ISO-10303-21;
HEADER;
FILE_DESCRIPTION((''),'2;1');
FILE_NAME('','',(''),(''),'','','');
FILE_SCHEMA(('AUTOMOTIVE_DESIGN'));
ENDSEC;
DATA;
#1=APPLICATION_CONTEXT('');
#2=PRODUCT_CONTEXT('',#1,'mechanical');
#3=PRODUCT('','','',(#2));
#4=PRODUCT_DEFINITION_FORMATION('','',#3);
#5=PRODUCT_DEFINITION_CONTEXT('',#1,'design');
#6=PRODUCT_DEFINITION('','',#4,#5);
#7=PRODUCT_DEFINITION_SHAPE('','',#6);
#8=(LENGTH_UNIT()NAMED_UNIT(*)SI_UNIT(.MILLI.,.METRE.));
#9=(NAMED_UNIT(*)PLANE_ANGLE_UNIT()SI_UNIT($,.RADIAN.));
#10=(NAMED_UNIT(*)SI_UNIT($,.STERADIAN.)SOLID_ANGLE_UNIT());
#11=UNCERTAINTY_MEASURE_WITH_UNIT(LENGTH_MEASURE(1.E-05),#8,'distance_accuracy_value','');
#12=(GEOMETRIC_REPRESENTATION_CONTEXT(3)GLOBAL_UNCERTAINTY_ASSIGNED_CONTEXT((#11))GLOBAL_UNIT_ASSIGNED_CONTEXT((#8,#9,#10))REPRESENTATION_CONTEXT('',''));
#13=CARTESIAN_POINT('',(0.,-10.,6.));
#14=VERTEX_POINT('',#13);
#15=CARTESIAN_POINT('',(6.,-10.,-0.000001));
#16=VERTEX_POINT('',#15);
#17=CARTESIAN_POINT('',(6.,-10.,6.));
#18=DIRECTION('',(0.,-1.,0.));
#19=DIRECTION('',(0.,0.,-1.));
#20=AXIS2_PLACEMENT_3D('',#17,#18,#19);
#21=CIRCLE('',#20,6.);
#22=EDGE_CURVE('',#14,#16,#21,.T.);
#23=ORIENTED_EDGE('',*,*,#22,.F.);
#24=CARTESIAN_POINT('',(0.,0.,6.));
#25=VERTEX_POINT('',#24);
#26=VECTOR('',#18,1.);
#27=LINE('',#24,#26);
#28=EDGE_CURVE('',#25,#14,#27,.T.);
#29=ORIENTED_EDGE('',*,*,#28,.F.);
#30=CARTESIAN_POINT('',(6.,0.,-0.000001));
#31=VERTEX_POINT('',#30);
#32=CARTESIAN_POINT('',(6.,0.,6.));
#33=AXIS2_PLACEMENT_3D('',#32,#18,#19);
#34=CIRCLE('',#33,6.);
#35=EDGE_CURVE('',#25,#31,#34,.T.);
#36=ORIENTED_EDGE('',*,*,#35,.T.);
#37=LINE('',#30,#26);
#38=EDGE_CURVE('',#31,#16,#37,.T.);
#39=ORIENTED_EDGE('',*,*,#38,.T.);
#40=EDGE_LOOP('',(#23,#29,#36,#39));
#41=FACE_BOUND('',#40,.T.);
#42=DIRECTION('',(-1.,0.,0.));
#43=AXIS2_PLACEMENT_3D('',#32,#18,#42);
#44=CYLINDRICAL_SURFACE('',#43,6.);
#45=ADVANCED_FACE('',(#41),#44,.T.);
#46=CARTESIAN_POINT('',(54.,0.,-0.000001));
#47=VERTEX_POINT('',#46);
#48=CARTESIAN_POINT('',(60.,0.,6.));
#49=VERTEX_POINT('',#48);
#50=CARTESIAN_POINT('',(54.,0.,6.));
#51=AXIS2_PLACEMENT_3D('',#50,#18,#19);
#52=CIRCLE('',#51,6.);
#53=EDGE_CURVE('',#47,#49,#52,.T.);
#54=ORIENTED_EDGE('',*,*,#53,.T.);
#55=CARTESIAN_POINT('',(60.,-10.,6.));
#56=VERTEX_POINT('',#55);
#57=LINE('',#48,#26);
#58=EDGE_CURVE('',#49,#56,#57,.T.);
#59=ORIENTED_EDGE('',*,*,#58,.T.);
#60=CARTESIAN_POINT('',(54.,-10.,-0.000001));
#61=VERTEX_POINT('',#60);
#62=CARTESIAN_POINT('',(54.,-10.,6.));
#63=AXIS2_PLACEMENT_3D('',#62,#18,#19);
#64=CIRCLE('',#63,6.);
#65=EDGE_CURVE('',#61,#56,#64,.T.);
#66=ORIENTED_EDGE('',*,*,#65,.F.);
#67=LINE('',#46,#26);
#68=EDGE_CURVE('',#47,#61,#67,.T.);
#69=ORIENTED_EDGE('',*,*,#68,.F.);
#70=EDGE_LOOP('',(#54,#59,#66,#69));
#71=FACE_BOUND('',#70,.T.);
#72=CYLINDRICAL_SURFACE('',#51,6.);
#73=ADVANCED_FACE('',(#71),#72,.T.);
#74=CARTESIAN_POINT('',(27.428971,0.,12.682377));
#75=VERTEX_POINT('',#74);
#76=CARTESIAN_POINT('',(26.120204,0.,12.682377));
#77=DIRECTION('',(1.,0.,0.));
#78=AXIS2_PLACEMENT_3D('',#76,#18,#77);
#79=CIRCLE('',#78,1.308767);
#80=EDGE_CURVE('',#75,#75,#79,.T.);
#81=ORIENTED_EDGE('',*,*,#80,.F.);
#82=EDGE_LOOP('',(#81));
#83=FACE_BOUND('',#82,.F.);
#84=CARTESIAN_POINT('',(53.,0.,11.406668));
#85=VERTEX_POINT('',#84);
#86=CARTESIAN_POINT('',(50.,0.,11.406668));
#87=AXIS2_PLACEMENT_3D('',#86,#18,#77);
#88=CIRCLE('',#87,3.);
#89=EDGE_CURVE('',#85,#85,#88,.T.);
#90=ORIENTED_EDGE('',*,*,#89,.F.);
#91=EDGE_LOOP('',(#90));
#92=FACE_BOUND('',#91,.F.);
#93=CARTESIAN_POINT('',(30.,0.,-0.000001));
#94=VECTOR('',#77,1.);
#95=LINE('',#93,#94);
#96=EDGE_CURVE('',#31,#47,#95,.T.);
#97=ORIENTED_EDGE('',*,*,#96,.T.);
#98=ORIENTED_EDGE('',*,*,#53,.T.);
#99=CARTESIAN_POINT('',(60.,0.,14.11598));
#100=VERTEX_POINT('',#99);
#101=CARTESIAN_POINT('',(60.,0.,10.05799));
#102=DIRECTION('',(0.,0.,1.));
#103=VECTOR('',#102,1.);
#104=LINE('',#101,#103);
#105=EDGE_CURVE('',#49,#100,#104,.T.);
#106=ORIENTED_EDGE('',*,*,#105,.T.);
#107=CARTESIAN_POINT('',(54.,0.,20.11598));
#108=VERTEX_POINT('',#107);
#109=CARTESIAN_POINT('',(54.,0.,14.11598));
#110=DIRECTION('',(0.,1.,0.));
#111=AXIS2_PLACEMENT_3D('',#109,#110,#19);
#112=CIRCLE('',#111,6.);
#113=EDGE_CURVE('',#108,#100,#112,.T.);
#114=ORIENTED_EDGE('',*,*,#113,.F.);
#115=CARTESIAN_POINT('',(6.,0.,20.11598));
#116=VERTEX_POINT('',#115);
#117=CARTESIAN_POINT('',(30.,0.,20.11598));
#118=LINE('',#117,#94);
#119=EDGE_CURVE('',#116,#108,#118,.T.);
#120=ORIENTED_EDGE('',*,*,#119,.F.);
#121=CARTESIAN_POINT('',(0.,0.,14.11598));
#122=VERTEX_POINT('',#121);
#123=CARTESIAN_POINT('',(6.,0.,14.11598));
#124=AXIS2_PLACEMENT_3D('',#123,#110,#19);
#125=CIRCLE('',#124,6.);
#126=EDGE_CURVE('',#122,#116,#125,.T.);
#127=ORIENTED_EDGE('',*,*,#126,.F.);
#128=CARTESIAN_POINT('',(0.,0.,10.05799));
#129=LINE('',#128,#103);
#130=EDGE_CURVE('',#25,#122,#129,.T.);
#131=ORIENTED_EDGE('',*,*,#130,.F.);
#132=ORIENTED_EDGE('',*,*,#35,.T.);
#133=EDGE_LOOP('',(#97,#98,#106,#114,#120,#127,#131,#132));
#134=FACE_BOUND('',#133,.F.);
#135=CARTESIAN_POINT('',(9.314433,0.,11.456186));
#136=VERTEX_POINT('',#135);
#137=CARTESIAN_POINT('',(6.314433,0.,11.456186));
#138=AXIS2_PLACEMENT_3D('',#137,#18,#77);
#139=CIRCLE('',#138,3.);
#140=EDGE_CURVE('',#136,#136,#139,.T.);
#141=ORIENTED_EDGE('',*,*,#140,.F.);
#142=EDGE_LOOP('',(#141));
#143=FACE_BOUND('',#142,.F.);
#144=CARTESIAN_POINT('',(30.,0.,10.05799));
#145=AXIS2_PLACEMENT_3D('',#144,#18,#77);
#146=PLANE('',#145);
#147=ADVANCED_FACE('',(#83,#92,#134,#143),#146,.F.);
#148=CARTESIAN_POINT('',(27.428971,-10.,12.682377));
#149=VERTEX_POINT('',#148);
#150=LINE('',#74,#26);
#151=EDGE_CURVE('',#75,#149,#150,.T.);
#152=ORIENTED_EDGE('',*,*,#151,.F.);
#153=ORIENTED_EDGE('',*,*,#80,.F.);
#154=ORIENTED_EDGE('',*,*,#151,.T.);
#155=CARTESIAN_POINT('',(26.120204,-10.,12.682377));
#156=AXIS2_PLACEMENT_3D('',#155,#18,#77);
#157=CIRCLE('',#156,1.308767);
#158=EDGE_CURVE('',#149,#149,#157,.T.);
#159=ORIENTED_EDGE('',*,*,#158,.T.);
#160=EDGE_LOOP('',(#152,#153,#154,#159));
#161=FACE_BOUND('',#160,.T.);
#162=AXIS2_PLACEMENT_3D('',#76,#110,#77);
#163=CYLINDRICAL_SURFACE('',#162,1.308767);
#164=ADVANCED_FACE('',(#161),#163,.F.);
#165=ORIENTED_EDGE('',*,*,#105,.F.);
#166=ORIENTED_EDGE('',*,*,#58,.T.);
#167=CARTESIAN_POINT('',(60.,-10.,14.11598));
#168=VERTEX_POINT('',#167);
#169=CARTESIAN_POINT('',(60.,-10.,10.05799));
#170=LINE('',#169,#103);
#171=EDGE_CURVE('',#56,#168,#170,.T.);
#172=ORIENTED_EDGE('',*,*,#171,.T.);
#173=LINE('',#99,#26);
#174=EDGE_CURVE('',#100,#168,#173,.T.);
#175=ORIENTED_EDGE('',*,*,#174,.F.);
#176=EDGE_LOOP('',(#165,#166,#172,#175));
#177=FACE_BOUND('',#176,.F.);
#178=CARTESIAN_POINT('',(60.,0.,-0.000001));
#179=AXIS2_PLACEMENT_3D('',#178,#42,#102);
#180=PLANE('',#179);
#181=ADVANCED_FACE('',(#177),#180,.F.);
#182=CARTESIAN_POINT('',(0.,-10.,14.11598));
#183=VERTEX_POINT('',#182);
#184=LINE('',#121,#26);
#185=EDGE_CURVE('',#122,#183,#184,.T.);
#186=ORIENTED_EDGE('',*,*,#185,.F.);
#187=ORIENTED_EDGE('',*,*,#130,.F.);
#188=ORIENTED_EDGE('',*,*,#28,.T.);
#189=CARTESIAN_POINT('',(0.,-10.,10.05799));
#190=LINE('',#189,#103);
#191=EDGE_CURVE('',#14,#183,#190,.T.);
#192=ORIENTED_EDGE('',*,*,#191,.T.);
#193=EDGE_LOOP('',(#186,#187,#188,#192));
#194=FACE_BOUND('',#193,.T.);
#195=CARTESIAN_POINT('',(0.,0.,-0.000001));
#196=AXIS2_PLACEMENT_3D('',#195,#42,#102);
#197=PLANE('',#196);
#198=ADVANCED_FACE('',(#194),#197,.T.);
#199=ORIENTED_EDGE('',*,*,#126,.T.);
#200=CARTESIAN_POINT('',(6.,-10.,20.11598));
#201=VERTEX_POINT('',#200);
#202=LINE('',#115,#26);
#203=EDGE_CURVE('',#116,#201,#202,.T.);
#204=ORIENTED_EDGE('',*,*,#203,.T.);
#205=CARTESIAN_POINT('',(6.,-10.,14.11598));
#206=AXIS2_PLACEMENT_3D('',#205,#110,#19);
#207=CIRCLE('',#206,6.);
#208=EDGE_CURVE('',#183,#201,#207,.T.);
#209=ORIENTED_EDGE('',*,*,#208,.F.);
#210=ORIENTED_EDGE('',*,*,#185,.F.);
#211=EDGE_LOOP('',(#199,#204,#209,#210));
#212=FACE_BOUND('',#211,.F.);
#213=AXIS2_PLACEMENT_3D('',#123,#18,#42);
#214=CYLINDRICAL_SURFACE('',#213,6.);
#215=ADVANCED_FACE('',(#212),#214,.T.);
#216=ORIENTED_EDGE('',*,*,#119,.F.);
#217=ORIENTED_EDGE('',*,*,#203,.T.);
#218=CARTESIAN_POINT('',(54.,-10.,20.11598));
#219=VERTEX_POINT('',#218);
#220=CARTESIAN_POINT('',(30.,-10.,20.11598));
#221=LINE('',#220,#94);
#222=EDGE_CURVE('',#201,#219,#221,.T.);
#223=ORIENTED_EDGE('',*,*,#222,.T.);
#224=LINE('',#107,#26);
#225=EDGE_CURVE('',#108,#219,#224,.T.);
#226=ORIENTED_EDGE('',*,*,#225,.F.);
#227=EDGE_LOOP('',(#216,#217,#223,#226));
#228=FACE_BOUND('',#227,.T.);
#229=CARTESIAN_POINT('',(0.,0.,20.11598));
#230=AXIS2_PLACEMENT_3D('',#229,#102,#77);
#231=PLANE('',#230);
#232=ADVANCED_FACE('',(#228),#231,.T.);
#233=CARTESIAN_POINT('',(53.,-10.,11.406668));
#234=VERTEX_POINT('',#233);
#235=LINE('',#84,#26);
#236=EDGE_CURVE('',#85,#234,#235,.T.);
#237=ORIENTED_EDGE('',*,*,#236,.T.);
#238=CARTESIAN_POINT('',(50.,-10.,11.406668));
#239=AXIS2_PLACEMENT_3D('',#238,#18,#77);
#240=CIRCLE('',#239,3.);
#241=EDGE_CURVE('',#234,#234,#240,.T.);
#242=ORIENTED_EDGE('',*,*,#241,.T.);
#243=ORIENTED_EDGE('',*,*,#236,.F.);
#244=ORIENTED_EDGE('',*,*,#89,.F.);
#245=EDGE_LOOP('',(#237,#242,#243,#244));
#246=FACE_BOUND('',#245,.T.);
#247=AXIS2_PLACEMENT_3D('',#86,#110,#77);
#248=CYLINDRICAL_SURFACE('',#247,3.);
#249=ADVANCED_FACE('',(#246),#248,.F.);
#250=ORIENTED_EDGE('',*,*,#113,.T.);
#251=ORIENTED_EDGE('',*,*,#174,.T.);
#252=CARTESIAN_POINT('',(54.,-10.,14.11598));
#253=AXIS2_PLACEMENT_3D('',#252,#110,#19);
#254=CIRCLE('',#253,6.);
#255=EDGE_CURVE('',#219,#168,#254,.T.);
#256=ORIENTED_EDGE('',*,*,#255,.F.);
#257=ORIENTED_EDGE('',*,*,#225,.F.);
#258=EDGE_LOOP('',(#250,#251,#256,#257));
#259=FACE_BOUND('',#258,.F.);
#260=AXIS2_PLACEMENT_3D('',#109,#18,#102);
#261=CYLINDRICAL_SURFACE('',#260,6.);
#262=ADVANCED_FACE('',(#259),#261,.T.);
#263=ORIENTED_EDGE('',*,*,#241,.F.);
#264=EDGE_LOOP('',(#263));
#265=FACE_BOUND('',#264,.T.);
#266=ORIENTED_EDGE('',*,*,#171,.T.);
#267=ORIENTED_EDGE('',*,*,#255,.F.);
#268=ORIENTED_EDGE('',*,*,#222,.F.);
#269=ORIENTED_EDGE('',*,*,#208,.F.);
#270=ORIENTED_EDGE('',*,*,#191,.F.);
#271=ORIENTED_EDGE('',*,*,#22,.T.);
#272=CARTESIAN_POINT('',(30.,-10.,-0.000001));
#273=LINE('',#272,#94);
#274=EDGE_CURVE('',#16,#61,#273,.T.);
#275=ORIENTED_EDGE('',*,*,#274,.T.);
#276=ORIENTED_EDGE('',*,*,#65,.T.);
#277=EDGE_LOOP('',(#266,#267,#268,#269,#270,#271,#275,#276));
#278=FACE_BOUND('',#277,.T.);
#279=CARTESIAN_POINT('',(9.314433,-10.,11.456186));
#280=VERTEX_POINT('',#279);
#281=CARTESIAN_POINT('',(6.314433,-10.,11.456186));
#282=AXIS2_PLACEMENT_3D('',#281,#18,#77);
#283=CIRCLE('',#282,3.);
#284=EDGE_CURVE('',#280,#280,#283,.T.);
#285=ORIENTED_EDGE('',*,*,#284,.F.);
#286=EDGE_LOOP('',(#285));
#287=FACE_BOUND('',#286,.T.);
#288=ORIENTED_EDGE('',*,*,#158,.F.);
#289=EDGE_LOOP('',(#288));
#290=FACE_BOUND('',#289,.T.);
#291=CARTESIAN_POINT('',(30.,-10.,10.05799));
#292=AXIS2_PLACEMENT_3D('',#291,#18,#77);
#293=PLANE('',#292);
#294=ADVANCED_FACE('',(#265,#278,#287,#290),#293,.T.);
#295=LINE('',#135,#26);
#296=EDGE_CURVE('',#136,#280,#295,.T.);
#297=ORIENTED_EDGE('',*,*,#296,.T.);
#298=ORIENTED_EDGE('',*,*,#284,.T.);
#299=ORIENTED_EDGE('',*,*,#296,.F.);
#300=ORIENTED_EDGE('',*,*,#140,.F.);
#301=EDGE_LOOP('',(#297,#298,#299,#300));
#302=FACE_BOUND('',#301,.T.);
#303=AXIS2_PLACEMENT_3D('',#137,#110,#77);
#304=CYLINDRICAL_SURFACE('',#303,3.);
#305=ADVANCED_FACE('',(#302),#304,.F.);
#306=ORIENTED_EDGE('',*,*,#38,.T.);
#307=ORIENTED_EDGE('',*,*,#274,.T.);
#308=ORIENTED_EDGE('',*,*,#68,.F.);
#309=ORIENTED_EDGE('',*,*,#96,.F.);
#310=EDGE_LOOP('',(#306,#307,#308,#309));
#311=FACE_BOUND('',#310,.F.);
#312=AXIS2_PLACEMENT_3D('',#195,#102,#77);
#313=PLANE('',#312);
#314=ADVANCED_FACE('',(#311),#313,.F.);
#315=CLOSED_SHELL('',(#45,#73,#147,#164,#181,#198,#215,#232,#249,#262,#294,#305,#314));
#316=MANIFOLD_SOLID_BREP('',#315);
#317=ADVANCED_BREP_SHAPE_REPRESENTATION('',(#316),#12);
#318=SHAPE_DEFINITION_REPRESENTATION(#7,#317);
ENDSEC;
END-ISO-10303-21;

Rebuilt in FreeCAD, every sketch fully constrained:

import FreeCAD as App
import Part
import Sketcher

V = App.Vector
Q = App.Units.Quantity


def edges_at(feature, points):
    """Names of the edges that pass closest to the given points."""
    edges = feature.Shape.Edges
    near = lambda p: min(range(len(edges)), key=lambda i: edges[i].distToShape(Part.Vertex(*p))[0])
    return sorted({f"Edge{near(p) + 1}" for p in points})

doc = App.newDocument("Part")
body = doc.addObject("PartDesign::Body", "Body")

# Sketch on XZ plane
sketch1 = doc.addObject("Sketcher::SketchObject", "Sketch")
body.addObject(sketch1)
sketch1.AttachmentSupport = (doc.XZ_Plane, [""])
sketch1.MapMode = "FlatFace"
sketch1.addGeometry([
    Part.LineSegment(V(0, 20.1, 0), V(0, 0, 0)),  # 0
    Part.LineSegment(V(0, 0, 0), V(60, 0, 0)),  # 1
    Part.LineSegment(V(60, 0, 0), V(60, 20.1, 0)),  # 2
    Part.LineSegment(V(60, 20.1, 0), V(0, 20.1, 0)),  # 3
    Part.Circle(V(50, 11.4, 0), V(0, 0, 1), 3),  # 4
    Part.Circle(V(6.3, 11.5, 0), V(0, 0, 1), 3),  # 5
    Part.Circle(V(26.1, 12.7, 0), V(0, 0, 1), 1.3),  # 6
], False)
sketch1.addConstraint([
    Sketcher.Constraint("Coincident", 0, 2, 1, 1),
    Sketcher.Constraint("Coincident", 1, 2, 2, 1),
    Sketcher.Constraint("Coincident", 2, 2, 3, 1),
    Sketcher.Constraint("Coincident", 3, 2, 0, 1),
    Sketcher.Constraint("Vertical", 0),
    Sketcher.Constraint("Horizontal", 1),
    Sketcher.Constraint("Vertical", 2),
    Sketcher.Constraint("Horizontal", 3),
    Sketcher.Constraint("Coincident", 0, 2, -1, 1),
    Sketcher.Constraint("Equal", 4, 5),
    Sketcher.Constraint("Diameter", 4, Q("6 mm")),
    Sketcher.Constraint("DistanceX", 1, 1, 1, 2, Q("60 mm")),
    Sketcher.Constraint("DistanceX", -1, 1, 4, 3, Q("50 mm")),
    Sketcher.Constraint("Diameter", 6, Q("2.617534 mm")),
    Sketcher.Constraint("DistanceY", 0, 2, 0, 1, Q("20.115981 mm")),
    Sketcher.Constraint("DistanceY", 4, 3, 5, 3, Q("0.049518 mm")),
    Sketcher.Constraint("DistanceX", 5, 3, 6, 3, Q("19.805771 mm")),
    Sketcher.Constraint("DistanceY", 5, 3, 6, 3, Q("1.226191 mm")),
    Sketcher.Constraint("DistanceY", 0, 2, 4, 3, Q("11.406669 mm")),
    Sketcher.Constraint("DistanceX", -1, 1, 5, 3, Q("6.314433 mm")),
])
pad1 = doc.addObject("PartDesign::Pad", "Pad")
body.addObject(pad1)
pad1.Profile = sketch1
pad1.Length = 10
doc.recompute()

fillet = doc.addObject("PartDesign::Fillet", "Fillet")
body.addObject(fillet)
fillet.Base = (pad1, edges_at(pad1, [
    (0, -5, 0),
    (0, -5, 20.116),
    (60, -5, 0),
    (60, -5, 20.116),
]))
fillet.Radius = 6

doc.recompute()
